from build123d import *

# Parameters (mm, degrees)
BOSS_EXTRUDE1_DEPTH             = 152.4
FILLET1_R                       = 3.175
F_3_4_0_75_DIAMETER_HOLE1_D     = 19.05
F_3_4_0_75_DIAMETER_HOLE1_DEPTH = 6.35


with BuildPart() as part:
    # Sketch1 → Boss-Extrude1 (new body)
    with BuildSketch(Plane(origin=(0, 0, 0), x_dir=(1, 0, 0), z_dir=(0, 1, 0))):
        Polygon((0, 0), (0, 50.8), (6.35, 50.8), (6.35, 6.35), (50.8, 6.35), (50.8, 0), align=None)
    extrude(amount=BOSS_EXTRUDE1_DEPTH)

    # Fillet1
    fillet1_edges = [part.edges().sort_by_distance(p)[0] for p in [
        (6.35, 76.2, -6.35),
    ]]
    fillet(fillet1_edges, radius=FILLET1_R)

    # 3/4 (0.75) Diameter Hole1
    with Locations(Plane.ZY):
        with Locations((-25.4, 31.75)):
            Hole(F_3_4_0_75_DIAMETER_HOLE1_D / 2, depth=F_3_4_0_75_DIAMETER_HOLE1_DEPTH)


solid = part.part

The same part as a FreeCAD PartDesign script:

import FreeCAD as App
import Part
import Sketcher

V = App.Vector
Q = App.Units.Quantity


def edges_at(feature, points):
    """Names of the edges that pass closest to the given points."""
    edges = feature.Shape.Edges
    near = lambda p: min(range(len(edges)), key=lambda i: edges[i].distToShape(Part.Vertex(*p))[0])
    return sorted({f"Edge{near(p) + 1}" for p in points})

doc = App.newDocument("Part")
body = doc.addObject("PartDesign::Body", "Body")

# Sketch on XZ plane
sketch1 = doc.addObject("Sketcher::SketchObject", "Sketch")
body.addObject(sketch1)
sketch1.AttachmentSupport = (doc.XZ_Plane, [""])
sketch1.MapMode = "FlatFace"
sketch1.addGeometry([
    Part.LineSegment(V(0, -51, 0), V(0, 0, 0)),  # 0
    Part.LineSegment(V(0, 0, 0), V(51, 0, 0)),  # 1
    Part.LineSegment(V(51, 0, 0), V(51, -6, 0)),  # 2
    Part.LineSegment(V(51, -6, 0), V(6, -6, 0)),  # 3
    Part.LineSegment(V(6, -6, 0), V(6, -51, 0)),  # 4
    Part.LineSegment(V(6, -51, 0), V(0, -51, 0)),  # 5
], False)
sketch1.addConstraint([
    Sketcher.Constraint("Coincident", 0, 2, 1, 1),
    Sketcher.Constraint("Coincident", 1, 2, 2, 1),
    Sketcher.Constraint("Coincident", 2, 2, 3, 1),
    Sketcher.Constraint("Coincident", 3, 2, 4, 1),
    Sketcher.Constraint("Coincident", 4, 2, 5, 1),
    Sketcher.Constraint("Coincident", 5, 2, 0, 1),
    Sketcher.Constraint("Vertical", 0),
    Sketcher.Constraint("Horizontal", 1),
    Sketcher.Constraint("Vertical", 2),
    Sketcher.Constraint("Horizontal", 3),
    Sketcher.Constraint("Vertical", 4),
    Sketcher.Constraint("Horizontal", 5),
    Sketcher.Constraint("Coincident", 0, 2, -1, 1),
    Sketcher.Constraint("Equal", 1, 0),
    Sketcher.Constraint("Equal", 5, 2),
    Sketcher.Constraint("DistanceX", 1, 1, 1, 2, Q("2 in")),
    Sketcher.Constraint("DistanceX", 3, 2, 3, 1, Q("1.75 in")),
])
pad1 = doc.addObject("PartDesign::Pad", "Pad")
body.addObject(pad1)
pad1.Profile = sketch1
pad1.Length = Q("6 in")
pad1.Reversed = True
doc.recompute()

fillet = doc.addObject("PartDesign::Fillet", "Fillet")
body.addObject(fillet)
fillet.Base = (pad1, edges_at(pad1, [(6.35, 76.2, -6.35)]))
fillet.Radius = Q("0.125 in")

# Sketch on YZ plane
sketch2 = doc.addObject("Sketcher::SketchObject", "Sketch001")
body.addObject(sketch2)
sketch2.AttachmentSupport = (doc.YZ_Plane, [""])
sketch2.MapMode = "FlatFace"
sketch2.addGeometry(Part.Circle(V(32, -25, 0), V(0, 0, 1), 10), False)
sketch2.addConstraint([
    Sketcher.Constraint("Diameter", 0, Q("0.75 in")),
    Sketcher.Constraint("DistanceY", 0, 3, -1, 1, Q("1 in")),
    Sketcher.Constraint("DistanceX", -1, 1, 0, 3, Q("1.25 in")),
])
doc.recompute()
hole = doc.addObject("PartDesign::Hole", "Hole")
body.addObject(hole)
hole.Profile = sketch2
hole.ThreadType = "None"
hole.Diameter = Q("0.75 in")
hole.DepthType = "Dimension"
hole.Depth = Q("0.25 in")
hole.DrillPoint = "Flat"
hole.Reversed = True

doc.recompute()
